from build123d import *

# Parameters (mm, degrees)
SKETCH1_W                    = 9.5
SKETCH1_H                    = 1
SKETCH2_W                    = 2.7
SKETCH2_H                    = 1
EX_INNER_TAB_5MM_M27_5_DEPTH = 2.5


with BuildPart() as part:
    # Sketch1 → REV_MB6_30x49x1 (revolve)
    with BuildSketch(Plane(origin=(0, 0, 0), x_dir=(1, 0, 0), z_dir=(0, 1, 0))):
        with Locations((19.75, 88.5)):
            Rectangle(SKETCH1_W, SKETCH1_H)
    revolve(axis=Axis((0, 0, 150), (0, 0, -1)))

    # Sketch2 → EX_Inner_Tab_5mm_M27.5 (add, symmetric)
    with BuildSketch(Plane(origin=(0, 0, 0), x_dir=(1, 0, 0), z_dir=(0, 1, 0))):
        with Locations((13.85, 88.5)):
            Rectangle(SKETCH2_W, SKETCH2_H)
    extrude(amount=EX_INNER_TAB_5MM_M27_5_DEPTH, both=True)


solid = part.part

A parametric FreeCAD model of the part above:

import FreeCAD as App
import Part
import Sketcher

V = App.Vector


def add_polygon(sketch, points):
    """Adds a closed chain of lines whose ends are joined by coincident constraints."""
    first, n = sketch.GeometryCount, len(points)
    for a, b in zip(points, points[1:] + points[:1]):
        sketch.addGeometry(Part.LineSegment(App.Vector(*a, 0), App.Vector(*b, 0)), False)
    for i in range(n):
        sketch.addConstraint(Sketcher.Constraint("Coincident", first + i, 2, first + (i + 1) % n, 1))

doc = App.newDocument("Part")
body = doc.addObject("PartDesign::Body", "Body")

# Sketch on XZ plane
sketch1 = body.newObject("Sketcher::SketchObject", "Sketch")
sketch1.AttachmentSupport = (doc.getObject("XZ_Plane"), [""])
sketch1.MapMode = "FlatFace"
add_polygon(sketch1, [(15, -89), (15, -88), (24.5, -88), (24.5, -89)])  # lines 0-3
sketch1.addConstraint(Sketcher.Constraint("Vertical", 0))
sketch1.addConstraint(Sketcher.Constraint("Horizontal", 1))
sketch1.addConstraint(Sketcher.Constraint("Vertical", 2))
sketch1.addConstraint(Sketcher.Constraint("Horizontal", 3))
sketch1.addConstraint(Sketcher.Constraint("DistanceY", 0, 1, 0, 2, 1.0))
sketch1.addConstraint(Sketcher.Constraint("DistanceX", 1, 1, 1, 2, 9.5))
sketch1.addConstraint(Sketcher.Constraint("DistanceX", -1, 1, 0, 2, 15.0))
sketch1.addConstraint(Sketcher.Constraint("DistanceY", 0, 2, -1, 1, 88.0))
revolution = body.newObject("PartDesign::Revolution", "Revolution")
revolution.Profile = sketch1
revolution.ReferenceAxis = (sketch1, ["V_Axis"])
revolution.Angle = 360

# Sketch on XZ plane
sketch2 = body.newObject("Sketcher::SketchObject", "Sketch001")
sketch2.AttachmentSupport = (doc.getObject("XZ_Plane"), [""])
sketch2.MapMode = "FlatFace"
add_polygon(sketch2, [(12.5, -89), (12.5, -88), (15.2, -88), (15.2, -89)])  # lines 0-3
sketch2.addConstraint(Sketcher.Constraint("Vertical", 0))
sketch2.addConstraint(Sketcher.Constraint("Horizontal", 1))
sketch2.addConstraint(Sketcher.Constraint("Vertical", 2))
sketch2.addConstraint(Sketcher.Constraint("Horizontal", 3))
sketch2.addConstraint(Sketcher.Constraint("DistanceY", 0, 1, 0, 2, 1.0))
sketch2.addConstraint(Sketcher.Constraint("DistanceX", 1, 1, 1, 2, 2.7))
sketch2.addConstraint(Sketcher.Constraint("DistanceY", 0, 2, -1, 1, 88.0))
sketch2.addConstraint(Sketcher.Constraint("DistanceX", -1, 1, 0, 2, 12.5))
pad1 = body.newObject("PartDesign::Pad", "Pad")
pad1.Profile = sketch2
pad1.Length = 5
pad1.Midplane = True

doc.recompute()
